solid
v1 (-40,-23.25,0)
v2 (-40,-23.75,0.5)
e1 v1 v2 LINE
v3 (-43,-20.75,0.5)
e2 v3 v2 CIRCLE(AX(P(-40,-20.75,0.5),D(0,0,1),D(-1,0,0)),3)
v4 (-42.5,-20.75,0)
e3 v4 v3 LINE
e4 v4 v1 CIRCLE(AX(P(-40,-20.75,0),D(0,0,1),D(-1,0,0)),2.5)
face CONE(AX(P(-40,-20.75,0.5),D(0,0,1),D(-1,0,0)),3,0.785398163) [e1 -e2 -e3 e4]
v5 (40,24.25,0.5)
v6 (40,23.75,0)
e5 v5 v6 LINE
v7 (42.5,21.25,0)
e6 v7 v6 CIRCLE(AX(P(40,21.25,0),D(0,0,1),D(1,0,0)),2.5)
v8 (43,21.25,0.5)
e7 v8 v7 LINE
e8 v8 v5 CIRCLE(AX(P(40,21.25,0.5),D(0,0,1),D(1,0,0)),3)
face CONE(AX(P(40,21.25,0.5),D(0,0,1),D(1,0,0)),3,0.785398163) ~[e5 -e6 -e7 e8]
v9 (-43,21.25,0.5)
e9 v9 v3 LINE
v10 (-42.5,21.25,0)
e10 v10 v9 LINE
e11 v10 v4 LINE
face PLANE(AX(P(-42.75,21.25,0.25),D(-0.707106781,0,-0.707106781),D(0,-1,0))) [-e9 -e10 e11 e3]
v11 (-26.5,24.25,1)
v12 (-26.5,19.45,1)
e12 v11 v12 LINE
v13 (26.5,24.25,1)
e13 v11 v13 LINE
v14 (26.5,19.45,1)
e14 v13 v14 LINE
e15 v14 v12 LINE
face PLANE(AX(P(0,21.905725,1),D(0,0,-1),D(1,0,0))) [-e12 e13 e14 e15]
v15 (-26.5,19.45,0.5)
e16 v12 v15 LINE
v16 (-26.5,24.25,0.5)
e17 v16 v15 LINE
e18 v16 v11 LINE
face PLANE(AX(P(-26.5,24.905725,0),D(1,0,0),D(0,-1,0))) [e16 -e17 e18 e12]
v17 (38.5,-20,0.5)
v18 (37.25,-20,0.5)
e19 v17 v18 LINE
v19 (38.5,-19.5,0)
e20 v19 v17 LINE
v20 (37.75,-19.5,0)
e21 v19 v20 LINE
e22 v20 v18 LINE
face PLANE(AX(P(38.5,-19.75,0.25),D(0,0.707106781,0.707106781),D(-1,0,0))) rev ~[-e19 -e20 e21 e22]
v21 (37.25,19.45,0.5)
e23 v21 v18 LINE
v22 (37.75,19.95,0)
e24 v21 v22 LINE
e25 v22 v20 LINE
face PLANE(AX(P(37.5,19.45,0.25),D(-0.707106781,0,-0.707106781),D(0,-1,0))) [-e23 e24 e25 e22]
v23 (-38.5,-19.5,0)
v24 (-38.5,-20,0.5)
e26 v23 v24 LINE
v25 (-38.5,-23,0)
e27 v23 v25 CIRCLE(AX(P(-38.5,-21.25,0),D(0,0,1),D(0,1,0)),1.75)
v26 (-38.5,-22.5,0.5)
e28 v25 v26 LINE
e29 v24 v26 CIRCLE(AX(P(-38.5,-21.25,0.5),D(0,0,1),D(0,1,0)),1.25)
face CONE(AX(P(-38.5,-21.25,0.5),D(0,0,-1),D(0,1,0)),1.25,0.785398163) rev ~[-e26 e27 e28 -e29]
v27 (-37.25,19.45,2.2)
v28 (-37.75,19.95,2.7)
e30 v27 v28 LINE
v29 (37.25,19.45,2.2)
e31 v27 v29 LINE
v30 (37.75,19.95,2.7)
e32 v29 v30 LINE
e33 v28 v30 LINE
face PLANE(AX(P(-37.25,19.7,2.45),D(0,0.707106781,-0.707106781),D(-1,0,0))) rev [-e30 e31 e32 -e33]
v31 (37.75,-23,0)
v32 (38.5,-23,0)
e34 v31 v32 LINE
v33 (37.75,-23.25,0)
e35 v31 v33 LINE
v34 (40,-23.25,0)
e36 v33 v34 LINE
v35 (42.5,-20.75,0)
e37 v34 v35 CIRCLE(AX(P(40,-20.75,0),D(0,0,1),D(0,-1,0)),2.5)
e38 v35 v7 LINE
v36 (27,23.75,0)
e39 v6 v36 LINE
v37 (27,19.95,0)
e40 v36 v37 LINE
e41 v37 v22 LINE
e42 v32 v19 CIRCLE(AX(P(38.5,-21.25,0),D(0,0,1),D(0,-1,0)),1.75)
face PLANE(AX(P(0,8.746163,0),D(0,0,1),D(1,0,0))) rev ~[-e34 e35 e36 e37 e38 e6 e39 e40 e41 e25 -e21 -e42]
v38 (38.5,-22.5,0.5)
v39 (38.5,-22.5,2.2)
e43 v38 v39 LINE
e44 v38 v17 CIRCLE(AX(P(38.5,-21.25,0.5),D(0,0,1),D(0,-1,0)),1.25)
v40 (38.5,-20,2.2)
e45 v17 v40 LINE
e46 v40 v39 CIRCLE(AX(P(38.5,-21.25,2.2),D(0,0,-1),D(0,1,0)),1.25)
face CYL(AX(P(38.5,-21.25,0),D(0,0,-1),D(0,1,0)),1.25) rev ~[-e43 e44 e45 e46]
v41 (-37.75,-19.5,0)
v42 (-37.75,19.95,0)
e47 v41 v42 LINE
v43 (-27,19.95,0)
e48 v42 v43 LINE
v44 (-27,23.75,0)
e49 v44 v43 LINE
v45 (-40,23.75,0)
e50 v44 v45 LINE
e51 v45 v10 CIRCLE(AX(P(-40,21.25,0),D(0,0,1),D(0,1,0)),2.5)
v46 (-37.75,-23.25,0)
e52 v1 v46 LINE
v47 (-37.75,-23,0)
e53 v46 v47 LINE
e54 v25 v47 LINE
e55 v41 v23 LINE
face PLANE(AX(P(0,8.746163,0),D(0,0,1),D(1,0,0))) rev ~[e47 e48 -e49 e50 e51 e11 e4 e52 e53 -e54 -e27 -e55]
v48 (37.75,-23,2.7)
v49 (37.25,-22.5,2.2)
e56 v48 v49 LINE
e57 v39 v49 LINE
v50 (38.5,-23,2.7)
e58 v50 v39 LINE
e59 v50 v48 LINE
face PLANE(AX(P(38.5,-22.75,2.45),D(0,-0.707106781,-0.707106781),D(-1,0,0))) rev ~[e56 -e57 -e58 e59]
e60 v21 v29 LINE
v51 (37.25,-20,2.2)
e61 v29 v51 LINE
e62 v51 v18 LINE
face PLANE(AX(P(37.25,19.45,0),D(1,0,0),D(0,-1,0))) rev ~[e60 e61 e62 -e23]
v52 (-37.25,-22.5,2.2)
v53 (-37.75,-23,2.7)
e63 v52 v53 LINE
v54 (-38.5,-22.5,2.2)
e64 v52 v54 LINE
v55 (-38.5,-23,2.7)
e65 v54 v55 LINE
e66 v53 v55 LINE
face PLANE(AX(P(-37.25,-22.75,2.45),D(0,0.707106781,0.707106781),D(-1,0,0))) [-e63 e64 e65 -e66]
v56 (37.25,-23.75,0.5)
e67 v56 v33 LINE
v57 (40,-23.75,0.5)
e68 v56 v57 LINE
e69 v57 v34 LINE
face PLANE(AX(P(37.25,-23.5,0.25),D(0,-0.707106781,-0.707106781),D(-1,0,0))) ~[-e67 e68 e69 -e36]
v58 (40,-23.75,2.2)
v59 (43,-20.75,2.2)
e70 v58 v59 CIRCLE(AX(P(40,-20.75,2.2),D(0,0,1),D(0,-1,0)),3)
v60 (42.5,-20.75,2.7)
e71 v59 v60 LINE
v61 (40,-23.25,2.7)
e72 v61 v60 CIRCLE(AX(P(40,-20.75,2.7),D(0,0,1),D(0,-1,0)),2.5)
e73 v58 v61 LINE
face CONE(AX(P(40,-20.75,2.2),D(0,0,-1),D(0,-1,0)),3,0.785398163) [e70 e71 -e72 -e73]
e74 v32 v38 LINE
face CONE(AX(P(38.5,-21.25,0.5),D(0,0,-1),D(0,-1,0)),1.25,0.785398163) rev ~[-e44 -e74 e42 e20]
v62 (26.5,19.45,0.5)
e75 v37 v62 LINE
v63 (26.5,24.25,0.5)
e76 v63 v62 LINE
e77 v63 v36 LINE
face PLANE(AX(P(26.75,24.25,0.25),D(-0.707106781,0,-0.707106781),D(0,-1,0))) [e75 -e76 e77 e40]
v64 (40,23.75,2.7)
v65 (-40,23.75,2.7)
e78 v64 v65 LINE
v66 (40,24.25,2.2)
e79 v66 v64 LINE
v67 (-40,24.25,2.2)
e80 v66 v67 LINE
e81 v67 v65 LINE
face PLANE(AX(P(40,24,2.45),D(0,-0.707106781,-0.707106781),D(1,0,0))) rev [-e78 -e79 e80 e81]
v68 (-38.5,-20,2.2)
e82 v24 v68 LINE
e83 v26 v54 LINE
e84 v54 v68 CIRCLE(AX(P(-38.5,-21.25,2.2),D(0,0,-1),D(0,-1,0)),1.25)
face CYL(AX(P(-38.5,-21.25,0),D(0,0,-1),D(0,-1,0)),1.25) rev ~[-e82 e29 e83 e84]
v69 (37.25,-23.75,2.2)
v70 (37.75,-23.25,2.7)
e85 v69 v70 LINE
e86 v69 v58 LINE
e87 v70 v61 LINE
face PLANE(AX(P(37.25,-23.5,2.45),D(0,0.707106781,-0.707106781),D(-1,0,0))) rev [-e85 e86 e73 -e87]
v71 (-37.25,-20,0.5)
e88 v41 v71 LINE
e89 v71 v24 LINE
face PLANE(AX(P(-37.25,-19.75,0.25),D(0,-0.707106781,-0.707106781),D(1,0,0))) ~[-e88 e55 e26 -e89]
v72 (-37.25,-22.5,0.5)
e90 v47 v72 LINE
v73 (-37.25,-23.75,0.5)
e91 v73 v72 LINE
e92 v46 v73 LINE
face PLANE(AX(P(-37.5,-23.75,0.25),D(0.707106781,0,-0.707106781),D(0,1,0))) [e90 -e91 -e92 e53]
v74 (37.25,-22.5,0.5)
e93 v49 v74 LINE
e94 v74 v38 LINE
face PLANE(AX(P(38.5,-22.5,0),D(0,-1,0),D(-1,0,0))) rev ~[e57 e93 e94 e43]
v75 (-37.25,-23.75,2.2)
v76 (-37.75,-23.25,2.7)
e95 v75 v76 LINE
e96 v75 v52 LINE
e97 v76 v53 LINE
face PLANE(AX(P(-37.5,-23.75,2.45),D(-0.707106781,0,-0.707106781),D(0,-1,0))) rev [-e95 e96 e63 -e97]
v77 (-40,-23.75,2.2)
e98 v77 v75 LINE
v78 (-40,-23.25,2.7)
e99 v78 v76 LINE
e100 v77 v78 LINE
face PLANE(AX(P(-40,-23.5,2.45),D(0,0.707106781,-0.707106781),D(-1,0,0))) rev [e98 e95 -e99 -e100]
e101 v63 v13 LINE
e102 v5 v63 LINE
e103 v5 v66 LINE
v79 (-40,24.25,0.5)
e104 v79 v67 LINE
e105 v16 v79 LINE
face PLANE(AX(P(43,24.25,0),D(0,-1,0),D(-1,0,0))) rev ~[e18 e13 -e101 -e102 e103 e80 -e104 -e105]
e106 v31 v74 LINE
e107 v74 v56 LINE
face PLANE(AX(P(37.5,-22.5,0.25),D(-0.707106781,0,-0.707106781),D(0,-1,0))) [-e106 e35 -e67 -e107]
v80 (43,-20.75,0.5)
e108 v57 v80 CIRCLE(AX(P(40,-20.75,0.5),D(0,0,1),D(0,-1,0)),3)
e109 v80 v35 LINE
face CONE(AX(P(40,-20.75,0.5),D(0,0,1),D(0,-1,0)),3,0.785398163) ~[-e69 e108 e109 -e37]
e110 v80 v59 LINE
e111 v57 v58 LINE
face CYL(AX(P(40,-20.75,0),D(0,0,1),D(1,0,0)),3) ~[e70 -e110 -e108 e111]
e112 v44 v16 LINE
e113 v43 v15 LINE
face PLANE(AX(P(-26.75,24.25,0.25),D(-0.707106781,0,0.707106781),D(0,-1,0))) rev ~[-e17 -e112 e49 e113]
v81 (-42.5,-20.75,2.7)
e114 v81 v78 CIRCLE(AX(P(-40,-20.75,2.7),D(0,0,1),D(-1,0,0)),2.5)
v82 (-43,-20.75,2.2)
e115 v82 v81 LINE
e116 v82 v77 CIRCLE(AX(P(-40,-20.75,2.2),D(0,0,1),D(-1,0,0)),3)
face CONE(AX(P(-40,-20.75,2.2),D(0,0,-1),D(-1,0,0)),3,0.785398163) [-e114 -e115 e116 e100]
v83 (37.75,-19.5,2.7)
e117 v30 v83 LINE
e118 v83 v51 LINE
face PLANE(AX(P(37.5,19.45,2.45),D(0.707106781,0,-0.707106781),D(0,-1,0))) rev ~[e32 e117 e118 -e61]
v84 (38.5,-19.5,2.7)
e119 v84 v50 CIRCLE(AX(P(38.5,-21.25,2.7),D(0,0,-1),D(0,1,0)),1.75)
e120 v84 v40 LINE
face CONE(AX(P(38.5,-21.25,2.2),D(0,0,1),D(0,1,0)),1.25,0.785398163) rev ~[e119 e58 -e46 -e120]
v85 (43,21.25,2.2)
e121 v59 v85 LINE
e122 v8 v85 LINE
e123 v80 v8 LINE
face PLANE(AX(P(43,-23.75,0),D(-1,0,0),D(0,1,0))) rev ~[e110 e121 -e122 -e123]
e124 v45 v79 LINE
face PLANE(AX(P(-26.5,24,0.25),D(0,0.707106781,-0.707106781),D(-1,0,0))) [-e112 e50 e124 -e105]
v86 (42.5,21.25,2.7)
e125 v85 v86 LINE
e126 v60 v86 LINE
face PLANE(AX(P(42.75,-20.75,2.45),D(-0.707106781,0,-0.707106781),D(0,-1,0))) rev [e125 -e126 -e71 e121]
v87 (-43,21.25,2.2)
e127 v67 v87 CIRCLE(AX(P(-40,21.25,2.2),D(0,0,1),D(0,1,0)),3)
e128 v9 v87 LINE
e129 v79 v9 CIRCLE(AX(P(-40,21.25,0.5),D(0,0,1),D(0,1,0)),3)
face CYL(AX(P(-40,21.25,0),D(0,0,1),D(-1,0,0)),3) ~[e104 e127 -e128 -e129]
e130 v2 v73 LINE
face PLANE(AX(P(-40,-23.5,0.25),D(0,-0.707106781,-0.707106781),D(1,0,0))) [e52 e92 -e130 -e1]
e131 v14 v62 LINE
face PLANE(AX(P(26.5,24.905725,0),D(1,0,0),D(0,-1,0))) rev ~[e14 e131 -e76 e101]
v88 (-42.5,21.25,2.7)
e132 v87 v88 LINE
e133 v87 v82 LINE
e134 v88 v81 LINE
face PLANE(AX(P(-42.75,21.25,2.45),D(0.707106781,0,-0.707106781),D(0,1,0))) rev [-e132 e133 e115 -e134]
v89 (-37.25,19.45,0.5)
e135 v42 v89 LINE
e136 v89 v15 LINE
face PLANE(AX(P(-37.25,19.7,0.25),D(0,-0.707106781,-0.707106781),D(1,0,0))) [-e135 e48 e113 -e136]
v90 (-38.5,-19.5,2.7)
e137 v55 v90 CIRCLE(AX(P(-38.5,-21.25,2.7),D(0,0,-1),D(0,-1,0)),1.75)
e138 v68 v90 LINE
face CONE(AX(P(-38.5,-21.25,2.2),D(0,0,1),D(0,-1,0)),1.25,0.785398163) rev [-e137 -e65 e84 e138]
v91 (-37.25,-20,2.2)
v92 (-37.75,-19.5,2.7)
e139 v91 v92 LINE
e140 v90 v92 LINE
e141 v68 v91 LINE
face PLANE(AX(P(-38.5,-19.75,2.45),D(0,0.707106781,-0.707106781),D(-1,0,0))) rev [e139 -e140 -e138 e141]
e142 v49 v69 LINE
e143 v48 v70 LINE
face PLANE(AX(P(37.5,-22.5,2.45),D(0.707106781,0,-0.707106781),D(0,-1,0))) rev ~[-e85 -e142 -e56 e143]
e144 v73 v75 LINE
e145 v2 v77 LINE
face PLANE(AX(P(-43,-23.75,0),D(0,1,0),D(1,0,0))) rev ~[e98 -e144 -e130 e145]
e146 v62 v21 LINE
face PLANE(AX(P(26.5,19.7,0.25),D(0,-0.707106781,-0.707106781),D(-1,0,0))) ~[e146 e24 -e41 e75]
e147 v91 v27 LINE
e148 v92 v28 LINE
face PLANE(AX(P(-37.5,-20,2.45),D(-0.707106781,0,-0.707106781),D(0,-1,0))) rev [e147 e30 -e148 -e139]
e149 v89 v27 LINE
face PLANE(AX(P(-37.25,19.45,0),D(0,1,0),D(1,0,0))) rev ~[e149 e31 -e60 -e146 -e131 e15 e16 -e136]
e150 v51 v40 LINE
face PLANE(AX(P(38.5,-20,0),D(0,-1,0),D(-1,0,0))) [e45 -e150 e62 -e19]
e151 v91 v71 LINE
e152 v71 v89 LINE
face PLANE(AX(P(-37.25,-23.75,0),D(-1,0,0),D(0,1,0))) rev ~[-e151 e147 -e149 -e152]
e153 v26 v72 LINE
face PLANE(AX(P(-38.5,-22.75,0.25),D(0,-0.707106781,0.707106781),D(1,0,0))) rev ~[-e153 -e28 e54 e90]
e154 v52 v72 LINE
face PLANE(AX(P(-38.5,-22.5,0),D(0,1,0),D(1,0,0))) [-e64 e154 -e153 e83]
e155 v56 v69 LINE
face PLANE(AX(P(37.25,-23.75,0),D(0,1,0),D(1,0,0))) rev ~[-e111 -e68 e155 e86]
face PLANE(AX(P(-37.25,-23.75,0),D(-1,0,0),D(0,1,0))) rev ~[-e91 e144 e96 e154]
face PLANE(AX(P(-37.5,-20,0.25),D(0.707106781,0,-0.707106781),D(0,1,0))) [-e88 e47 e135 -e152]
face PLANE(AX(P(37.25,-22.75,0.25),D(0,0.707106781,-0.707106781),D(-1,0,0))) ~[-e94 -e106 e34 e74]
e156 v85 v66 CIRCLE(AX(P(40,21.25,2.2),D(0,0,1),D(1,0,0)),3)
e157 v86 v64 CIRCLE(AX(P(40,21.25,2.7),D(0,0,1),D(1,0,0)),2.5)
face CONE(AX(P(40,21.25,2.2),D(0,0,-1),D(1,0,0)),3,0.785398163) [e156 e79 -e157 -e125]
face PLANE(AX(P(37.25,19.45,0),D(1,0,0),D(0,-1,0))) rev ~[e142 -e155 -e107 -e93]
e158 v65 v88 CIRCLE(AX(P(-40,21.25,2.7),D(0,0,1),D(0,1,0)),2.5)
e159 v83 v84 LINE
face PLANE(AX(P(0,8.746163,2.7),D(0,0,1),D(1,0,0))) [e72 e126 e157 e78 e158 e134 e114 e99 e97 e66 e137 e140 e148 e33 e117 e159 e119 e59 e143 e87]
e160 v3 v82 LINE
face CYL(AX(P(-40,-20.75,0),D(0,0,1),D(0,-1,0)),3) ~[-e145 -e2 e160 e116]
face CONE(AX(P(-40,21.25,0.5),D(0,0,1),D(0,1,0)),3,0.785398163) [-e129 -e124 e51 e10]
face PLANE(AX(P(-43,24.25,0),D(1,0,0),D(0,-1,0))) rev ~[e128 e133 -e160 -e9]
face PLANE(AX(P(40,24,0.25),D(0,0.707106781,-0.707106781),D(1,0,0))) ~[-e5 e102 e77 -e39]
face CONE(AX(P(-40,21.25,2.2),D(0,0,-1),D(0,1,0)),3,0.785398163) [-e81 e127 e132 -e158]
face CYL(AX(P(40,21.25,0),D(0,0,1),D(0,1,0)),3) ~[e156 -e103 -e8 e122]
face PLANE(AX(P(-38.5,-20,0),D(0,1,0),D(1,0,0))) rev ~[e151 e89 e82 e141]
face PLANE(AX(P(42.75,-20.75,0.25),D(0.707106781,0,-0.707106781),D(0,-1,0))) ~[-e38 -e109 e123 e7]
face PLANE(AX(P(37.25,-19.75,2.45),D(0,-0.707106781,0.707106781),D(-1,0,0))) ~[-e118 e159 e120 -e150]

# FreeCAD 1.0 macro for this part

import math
import FreeCAD as App
import Part
import Sketcher
Q = App.Units.Quantity


def edges_at(feature, points):
    """Names of the edges that pass closest to the given points."""
    edges = feature.Shape.Edges
    near = lambda p: min(range(len(edges)), key=lambda i: edges[i].distToShape(Part.Vertex(*p))[0])
    return sorted({f"Edge{near(p) + 1}" for p in points})

doc = App.newDocument("Part")
body = doc.addObject("PartDesign::Body", "Body")

# Sketch on XY plane
sketch1 = doc.addObject("Sketcher::SketchObject", "Sketch")
body.addObject(sketch1)
sketch1.AttachmentSupport = (doc.XY_Plane, [""])
sketch1.MapMode = "FlatFace"
sketch1.addGeometry([
    Part.LineSegment(App.Vector(-37, -24, 0), App.Vector(-37, 19, 0)),  # 0
    Part.LineSegment(App.Vector(-37, 19, 0), App.Vector(37, 19, 0)),  # 1
    Part.LineSegment(App.Vector(37, 19, 0), App.Vector(37, -24, 0)),  # 2
    Part.LineSegment(App.Vector(37, -24, 0), App.Vector(43, -24, 0)),  # 3
    Part.LineSegment(App.Vector(43, -24, 0), App.Vector(43, 24, 0)),  # 4
    Part.LineSegment(App.Vector(43, 24, 0), App.Vector(-43, 24, 0)),  # 5
    Part.LineSegment(App.Vector(-43, 24, 0), App.Vector(-43, -24, 0)),  # 6
    Part.LineSegment(App.Vector(-43, -24, 0), App.Vector(-37, -24, 0)),  # 7
], False)
sketch1.addConstraint([
    Sketcher.Constraint("Coincident", 0, 2, 1, 1),
    Sketcher.Constraint("Coincident", 1, 2, 2, 1),
    Sketcher.Constraint("Coincident", 2, 2, 3, 1),
    Sketcher.Constraint("Coincident", 3, 2, 4, 1),
    Sketcher.Constraint("Coincident", 4, 2, 5, 1),
    Sketcher.Constraint("Coincident", 5, 2, 6, 1),
    Sketcher.Constraint("Coincident", 6, 2, 7, 1),
    Sketcher.Constraint("Coincident", 7, 2, 0, 1),
    Sketcher.Constraint("Vertical", 0),
    Sketcher.Constraint("Horizontal", 1),
    Sketcher.Constraint("Vertical", 2),
    Sketcher.Constraint("Horizontal", 3),
    Sketcher.Constraint("Vertical", 4),
    Sketcher.Constraint("Horizontal", 5),
    Sketcher.Constraint("Vertical", 6),
    Sketcher.Constraint("Horizontal", 7),
    Sketcher.Constraint("Symmetric", 3, 2, 6, 2, -2),
    Sketcher.Constraint("Equal", 3, 7),
    Sketcher.Constraint("DistanceX", 5, 2, 5, 1, Q("86 mm")),
    Sketcher.Constraint("DistanceY", 4, 1, 4, 2, Q("48 mm")),
    Sketcher.Constraint("DistanceX", 1, 1, 1, 2, Q("74.5 mm")),
    Sketcher.Constraint("DistanceY", 0, 1, 0, 2, Q("43.2 mm")),
    Sketcher.Constraint("DistanceY", -1, 1, 0, 2, Q("19.45 mm")),
])
pad1 = doc.addObject("PartDesign::Pad", "Pad")
body.addObject(pad1)
pad1.Profile = sketch1
pad1.Length = 2.7

# Sketch on XY plane
sketch2 = doc.addObject("Sketcher::SketchObject", "Sketch001")
body.addObject(sketch2)
sketch2.AttachmentSupport = (doc.XY_Plane, [""])
sketch2.MapMode = "FlatFace"
sketch2.addGeometry([
    Part.LineSegment(App.Vector(-26, 19, 0), App.Vector(-26, 25, 0)),
    Part.LineSegment(App.Vector(-26, 25, 0), App.Vector(26, 25, 0)),
    Part.LineSegment(App.Vector(26, 25, 0), App.Vector(26, 19, 0)),
    Part.LineSegment(App.Vector(26, 19, 0), App.Vector(-26, 19, 0)),
], False)
sketch2.addConstraint([
    Sketcher.Constraint("Coincident", 0, 2, 1, 1),
    Sketcher.Constraint("Coincident", 1, 2, 2, 1),
    Sketcher.Constraint("Coincident", 2, 2, 3, 1),
    Sketcher.Constraint("Coincident", 3, 2, 0, 1),
    Sketcher.Constraint("Vertical", 0),
    Sketcher.Constraint("Horizontal", 1),
    Sketcher.Constraint("Vertical", 2),
    Sketcher.Constraint("Horizontal", 3),
    Sketcher.Constraint("DistanceX", 1, 1, 1, 2, Q("53 mm")),
    Sketcher.Constraint("DistanceY", 0, 1, 0, 2, Q("6 mm")),
    Sketcher.Constraint("DistanceX", 0, 2, -1, 1, Q("26.5 mm")),
    Sketcher.Constraint("DistanceY", -1, 1, 0, 2, Q("24.905725 mm")),
])
pocket1 = doc.addObject("PartDesign::Pocket", "Pocket")
body.addObject(pocket1)
pocket1.Profile = sketch2
pocket1.Length = 1
pocket1.Reversed = True

# Sketch on XY plane
sketch3 = doc.addObject("Sketcher::SketchObject", "Sketch002")
body.addObject(sketch3)
sketch3.AttachmentSupport = (doc.XY_Plane, [""])
sketch3.MapMode = "FlatFace"
sketch3.addGeometry([
    Part.ArcOfCircle(Part.Circle(App.Vector(38.5, -21.2, 0), App.Vector(0, 0, 1), 1.2), math.radians(-90), math.radians(90)),  # 0
    Part.LineSegment(App.Vector(38.5, -22.5, 0), App.Vector(36, -22.5, 0)),  # 1
    Part.LineSegment(App.Vector(36, -22.5, 0), App.Vector(36, -20, 0)),  # 2
    Part.LineSegment(App.Vector(36, -20, 0), App.Vector(38.5, -20, 0)),  # 3
    Part.ArcOfCircle(Part.Circle(App.Vector(-38.5, -21.2, 0), App.Vector(0, 0, 1), 1.2), math.radians(90), math.radians(270)),  # 4
    Part.LineSegment(App.Vector(-38.5, -20, 0), App.Vector(-36, -20, 0)),  # 5
    Part.LineSegment(App.Vector(-36, -20, 0), App.Vector(-36, -22.5, 0)),  # 6
    Part.LineSegment(App.Vector(-36, -22.5, 0), App.Vector(-38.5, -22.5, 0)),  # 7
], False)
sketch3.addConstraint([
    Sketcher.Constraint("Tangent", 0, 1, 1, 1),
    Sketcher.Constraint("Coincident", 1, 2, 2, 1),
    Sketcher.Constraint("Coincident", 2, 2, 3, 1),
    Sketcher.Constraint("Tangent", 3, 2, 0, 2),
    Sketcher.Constraint("Tangent", 4, 1, 5, 1),
    Sketcher.Constraint("Coincident", 5, 2, 6, 1),
    Sketcher.Constraint("Coincident", 6, 2, 7, 1),
    Sketcher.Constraint("Tangent", 7, 2, 4, 2),
    Sketcher.Constraint("Horizontal", 1),
    Sketcher.Constraint("Vertical", 2),
    Sketcher.Constraint("Horizontal", 3),
    Sketcher.Constraint("Horizontal", 5),
    Sketcher.Constraint("Vertical", 6),
    Sketcher.Constraint("Horizontal", 7),
    Sketcher.Constraint("Equal", 0, 4),
    Sketcher.Constraint("Symmetric", 0, 3, 4, 3, -2),
    Sketcher.Constraint("Equal", 3, 5),
    Sketcher.Constraint("Equal", 7, 2),
    Sketcher.Constraint("Radius", 0, Q("1.25 mm")),
    Sketcher.Constraint("DistanceX", -1, 1, 1, 2, Q("36 mm")),
    Sketcher.Constraint("DistanceY", 2, 2, -1, 1, Q("20 mm")),
])
pocket2 = doc.addObject("PartDesign::Pocket", "Pocket001")
body.addObject(pocket2)
pocket2.Profile = sketch3
pocket2.Type = "ThroughAll"
pocket2.Reversed = True
doc.recompute()

fillet = doc.addObject("PartDesign::Fillet", "Fillet")
body.addObject(fillet)
fillet.Base = (pocket2, edges_at(pocket2, [
    (43, -23.75, 1.35),
    (43, 24.25, 1.35),
    (-43, 24.25, 1.35),
    (-43, -23.75, 1.35),
]))
fillet.Radius = 3
doc.recompute()

chamfer = doc.addObject("PartDesign::Chamfer", "Chamfer")
body.addObject(chamfer)
chamfer.Base = (fillet, edges_at(fillet, [
    (-43, 0.25, 0),
    (-42.121, 23.371, 0),
    (-42.121, -22.871, 0),
    (-33.25, 24.25, 0),
    (-38.625, -23.75, 0),
    (-26.5, 21.85, 0),
    (-37.25, -23.125, 0),
    (-31.875, 19.45, 0),
    (-37.875, -22.5, 0),
    (-37.25, -0.275, 0),
    (-39.75, -21.25, 0),
    (-37.875, -20, 0),
    (33.25, 24.25, 0),
    (42.121, 23.371, 0),
    (26.5, 21.85, 0),
    (43, 0.25, 0),
    (31.875, 19.45, 0),
    (42.121, -22.871, 0),
    (37.25, -0.275, 0),
    (38.625, -23.75, 0),
    (37.875, -20, 0),
    (37.25, -23.125, 0),
    (39.75, -21.25, 0),
    (37.875, -22.5, 0),
    (-38.625, -23.75, 2.7),
    (-42.121, -22.871, 2.7),
    (-37.25, -23.125, 2.7),
    (-43, 0.25, 2.7),
    (-37.875, -22.5, 2.7),
    (-42.121, 23.371, 2.7),
    (-39.75, -21.25, 2.7),
    (0, 24.25, 2.7),
    (-37.875, -20, 2.7),
    (42.121, 23.371, 2.7),
    (-37.25, -0.275, 2.7),
    (43, 0.25, 2.7),
    (0, 19.45, 2.7),
    (42.121, -22.871, 2.7),
    (37.25, -0.275, 2.7),
    (38.625, -23.75, 2.7),
    (37.875, -20, 2.7),
    (37.25, -23.125, 2.7),
    (39.75, -21.25, 2.7),
    (37.875, -22.5, 2.7),
]))
chamfer.Size = 0.5

doc.recompute()
